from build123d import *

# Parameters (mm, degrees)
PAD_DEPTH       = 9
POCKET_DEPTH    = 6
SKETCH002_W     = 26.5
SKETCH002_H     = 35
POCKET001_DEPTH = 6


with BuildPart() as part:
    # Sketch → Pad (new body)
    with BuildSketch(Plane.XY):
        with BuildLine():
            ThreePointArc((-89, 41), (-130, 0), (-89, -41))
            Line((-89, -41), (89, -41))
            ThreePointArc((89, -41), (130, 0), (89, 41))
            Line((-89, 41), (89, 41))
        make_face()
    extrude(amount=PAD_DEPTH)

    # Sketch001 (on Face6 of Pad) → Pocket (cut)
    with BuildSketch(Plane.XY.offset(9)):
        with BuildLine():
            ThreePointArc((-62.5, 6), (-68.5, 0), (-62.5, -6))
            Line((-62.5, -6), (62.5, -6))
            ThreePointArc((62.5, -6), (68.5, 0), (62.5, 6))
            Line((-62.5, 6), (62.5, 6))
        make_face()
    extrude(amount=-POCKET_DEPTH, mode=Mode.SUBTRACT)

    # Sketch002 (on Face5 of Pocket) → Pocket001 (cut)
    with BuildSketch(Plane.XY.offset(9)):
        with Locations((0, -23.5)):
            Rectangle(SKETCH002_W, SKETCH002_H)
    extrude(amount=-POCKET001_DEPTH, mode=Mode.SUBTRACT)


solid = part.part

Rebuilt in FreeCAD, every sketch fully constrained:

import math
import FreeCAD as App
import Part
import Sketcher
from FreeCAD import Vector


def add_polygon(sketch, points):
    """Adds a closed chain of lines whose ends are joined by coincident constraints."""
    first, n = sketch.GeometryCount, len(points)
    for a, b in zip(points, points[1:] + points[:1]):
        sketch.addGeometry(Part.LineSegment(App.Vector(*a, 0), App.Vector(*b, 0)), False)
    for i in range(n):
        sketch.addConstraint(Sketcher.Constraint("Coincident", first + i, 2, first + (i + 1) % n, 1))

doc = App.newDocument("Part")
body = doc.addObject("PartDesign::Body", "Body")

# Sketch on XY plane
sketch1 = body.newObject("Sketcher::SketchObject", "Sketch")
sketch1.AttachmentSupport = (doc.getObject("XY_Plane"), [""])
sketch1.MapMode = "FlatFace"
sketch1.addGeometry(Part.ArcOfCircle(Part.Circle(Vector(-89, 0, 0), Vector(0, 0, 1), 41), math.radians(90), math.radians(270)), False)
sketch1.addGeometry(Part.LineSegment(Vector(-89, -41, 0), Vector(89, -41, 0)), False)
sketch1.addGeometry(Part.ArcOfCircle(Part.Circle(Vector(89, 0, 0), Vector(0, 0, 1), 41), math.radians(-90), math.radians(90)), False)
sketch1.addGeometry(Part.LineSegment(Vector(89, 41, 0), Vector(-89, 41, 0)), False)
sketch1.addConstraint(Sketcher.Constraint("Tangent", 0, 2, 1, 1))
sketch1.addConstraint(Sketcher.Constraint("Tangent", 1, 2, 2, 1))
sketch1.addConstraint(Sketcher.Constraint("Tangent", 2, 2, 3, 1))
sketch1.addConstraint(Sketcher.Constraint("Tangent", 3, 2, 0, 1))
sketch1.addConstraint(Sketcher.Constraint("Horizontal", 1))
sketch1.addConstraint(Sketcher.Constraint("Horizontal", 3))
sketch1.addConstraint(Sketcher.Constraint("Symmetric", 0, 3, 2, 3, -1, 1))
sketch1.addConstraint(Sketcher.Constraint("Radius", 0, 41.0))
sketch1.addConstraint(Sketcher.Constraint("DistanceX", 1, 1, 1, 2, 178.0))
pad1 = body.newObject("PartDesign::Pad", "Pad")
pad1.Profile = sketch1
pad1.Length = 9

# Sketch on XY plane
sketch2 = body.newObject("Sketcher::SketchObject", "Sketch001")
sketch2.AttachmentSupport = (doc.getObject("XY_Plane"), [""])
sketch2.MapMode = "FlatFace"
sketch2.AttachmentOffset = App.Placement(Vector(0, 0, 9), App.Rotation())
sketch2.addGeometry(Part.ArcOfCircle(Part.Circle(Vector(-62, 0, 0), Vector(0, 0, 1), 6), math.radians(90), math.radians(270)), False)
sketch2.addGeometry(Part.LineSegment(Vector(-62, -6, 0), Vector(62, -6, 0)), False)
sketch2.addGeometry(Part.ArcOfCircle(Part.Circle(Vector(62, 0, 0), Vector(0, 0, 1), 6), math.radians(-90), math.radians(90)), False)
sketch2.addGeometry(Part.LineSegment(Vector(62, 6, 0), Vector(-62, 6, 0)), False)
sketch2.addConstraint(Sketcher.Constraint("Tangent", 0, 2, 1, 1))
sketch2.addConstraint(Sketcher.Constraint("Tangent", 1, 2, 2, 1))
sketch2.addConstraint(Sketcher.Constraint("Tangent", 2, 2, 3, 1))
sketch2.addConstraint(Sketcher.Constraint("Tangent", 3, 2, 0, 1))
sketch2.addConstraint(Sketcher.Constraint("Horizontal", 1))
sketch2.addConstraint(Sketcher.Constraint("Horizontal", 3))
sketch2.addConstraint(Sketcher.Constraint("Symmetric", 0, 3, 2, 3, -1, 1))
sketch2.addConstraint(Sketcher.Constraint("Radius", 0, 6.0))
sketch2.addConstraint(Sketcher.Constraint("DistanceX", 1, 1, 1, 2, 125.0))
pocket1 = body.newObject("PartDesign::Pocket", "Pocket")
pocket1.Profile = sketch2
pocket1.Length = 6

# Sketch on XY plane
sketch3 = body.newObject("Sketcher::SketchObject", "Sketch002")
sketch3.AttachmentSupport = (doc.getObject("XY_Plane"), [""])
sketch3.MapMode = "FlatFace"
sketch3.AttachmentOffset = App.Placement(Vector(0, 0, 9), App.Rotation())
add_polygon(sketch3, [(-13, -6), (-13, -41), (13, -41), (13, -6)])  # lines 0-3
sketch3.addConstraint(Sketcher.Constraint("Vertical", 0))
sketch3.addConstraint(Sketcher.Constraint("Horizontal", 1))
sketch3.addConstraint(Sketcher.Constraint("Vertical", 2))
sketch3.addConstraint(Sketcher.Constraint("Horizontal", 3))
sketch3.addConstraint(Sketcher.Constraint("DistanceY", 0, 2, 0, 1, 35.0))
sketch3.addConstraint(Sketcher.Constraint("DistanceX", 1, 1, 1, 2, 26.5))
sketch3.addConstraint(Sketcher.Constraint("DistanceY", 0, 2, -1, 1, 41.0))
sketch3.addConstraint(Sketcher.Constraint("DistanceX", 0, 2, -1, 1, 13.25))
pocket2 = body.newObject("PartDesign::Pocket", "Pocket001")
pocket2.Profile = sketch3
pocket2.Length = 6

doc.recompute()
